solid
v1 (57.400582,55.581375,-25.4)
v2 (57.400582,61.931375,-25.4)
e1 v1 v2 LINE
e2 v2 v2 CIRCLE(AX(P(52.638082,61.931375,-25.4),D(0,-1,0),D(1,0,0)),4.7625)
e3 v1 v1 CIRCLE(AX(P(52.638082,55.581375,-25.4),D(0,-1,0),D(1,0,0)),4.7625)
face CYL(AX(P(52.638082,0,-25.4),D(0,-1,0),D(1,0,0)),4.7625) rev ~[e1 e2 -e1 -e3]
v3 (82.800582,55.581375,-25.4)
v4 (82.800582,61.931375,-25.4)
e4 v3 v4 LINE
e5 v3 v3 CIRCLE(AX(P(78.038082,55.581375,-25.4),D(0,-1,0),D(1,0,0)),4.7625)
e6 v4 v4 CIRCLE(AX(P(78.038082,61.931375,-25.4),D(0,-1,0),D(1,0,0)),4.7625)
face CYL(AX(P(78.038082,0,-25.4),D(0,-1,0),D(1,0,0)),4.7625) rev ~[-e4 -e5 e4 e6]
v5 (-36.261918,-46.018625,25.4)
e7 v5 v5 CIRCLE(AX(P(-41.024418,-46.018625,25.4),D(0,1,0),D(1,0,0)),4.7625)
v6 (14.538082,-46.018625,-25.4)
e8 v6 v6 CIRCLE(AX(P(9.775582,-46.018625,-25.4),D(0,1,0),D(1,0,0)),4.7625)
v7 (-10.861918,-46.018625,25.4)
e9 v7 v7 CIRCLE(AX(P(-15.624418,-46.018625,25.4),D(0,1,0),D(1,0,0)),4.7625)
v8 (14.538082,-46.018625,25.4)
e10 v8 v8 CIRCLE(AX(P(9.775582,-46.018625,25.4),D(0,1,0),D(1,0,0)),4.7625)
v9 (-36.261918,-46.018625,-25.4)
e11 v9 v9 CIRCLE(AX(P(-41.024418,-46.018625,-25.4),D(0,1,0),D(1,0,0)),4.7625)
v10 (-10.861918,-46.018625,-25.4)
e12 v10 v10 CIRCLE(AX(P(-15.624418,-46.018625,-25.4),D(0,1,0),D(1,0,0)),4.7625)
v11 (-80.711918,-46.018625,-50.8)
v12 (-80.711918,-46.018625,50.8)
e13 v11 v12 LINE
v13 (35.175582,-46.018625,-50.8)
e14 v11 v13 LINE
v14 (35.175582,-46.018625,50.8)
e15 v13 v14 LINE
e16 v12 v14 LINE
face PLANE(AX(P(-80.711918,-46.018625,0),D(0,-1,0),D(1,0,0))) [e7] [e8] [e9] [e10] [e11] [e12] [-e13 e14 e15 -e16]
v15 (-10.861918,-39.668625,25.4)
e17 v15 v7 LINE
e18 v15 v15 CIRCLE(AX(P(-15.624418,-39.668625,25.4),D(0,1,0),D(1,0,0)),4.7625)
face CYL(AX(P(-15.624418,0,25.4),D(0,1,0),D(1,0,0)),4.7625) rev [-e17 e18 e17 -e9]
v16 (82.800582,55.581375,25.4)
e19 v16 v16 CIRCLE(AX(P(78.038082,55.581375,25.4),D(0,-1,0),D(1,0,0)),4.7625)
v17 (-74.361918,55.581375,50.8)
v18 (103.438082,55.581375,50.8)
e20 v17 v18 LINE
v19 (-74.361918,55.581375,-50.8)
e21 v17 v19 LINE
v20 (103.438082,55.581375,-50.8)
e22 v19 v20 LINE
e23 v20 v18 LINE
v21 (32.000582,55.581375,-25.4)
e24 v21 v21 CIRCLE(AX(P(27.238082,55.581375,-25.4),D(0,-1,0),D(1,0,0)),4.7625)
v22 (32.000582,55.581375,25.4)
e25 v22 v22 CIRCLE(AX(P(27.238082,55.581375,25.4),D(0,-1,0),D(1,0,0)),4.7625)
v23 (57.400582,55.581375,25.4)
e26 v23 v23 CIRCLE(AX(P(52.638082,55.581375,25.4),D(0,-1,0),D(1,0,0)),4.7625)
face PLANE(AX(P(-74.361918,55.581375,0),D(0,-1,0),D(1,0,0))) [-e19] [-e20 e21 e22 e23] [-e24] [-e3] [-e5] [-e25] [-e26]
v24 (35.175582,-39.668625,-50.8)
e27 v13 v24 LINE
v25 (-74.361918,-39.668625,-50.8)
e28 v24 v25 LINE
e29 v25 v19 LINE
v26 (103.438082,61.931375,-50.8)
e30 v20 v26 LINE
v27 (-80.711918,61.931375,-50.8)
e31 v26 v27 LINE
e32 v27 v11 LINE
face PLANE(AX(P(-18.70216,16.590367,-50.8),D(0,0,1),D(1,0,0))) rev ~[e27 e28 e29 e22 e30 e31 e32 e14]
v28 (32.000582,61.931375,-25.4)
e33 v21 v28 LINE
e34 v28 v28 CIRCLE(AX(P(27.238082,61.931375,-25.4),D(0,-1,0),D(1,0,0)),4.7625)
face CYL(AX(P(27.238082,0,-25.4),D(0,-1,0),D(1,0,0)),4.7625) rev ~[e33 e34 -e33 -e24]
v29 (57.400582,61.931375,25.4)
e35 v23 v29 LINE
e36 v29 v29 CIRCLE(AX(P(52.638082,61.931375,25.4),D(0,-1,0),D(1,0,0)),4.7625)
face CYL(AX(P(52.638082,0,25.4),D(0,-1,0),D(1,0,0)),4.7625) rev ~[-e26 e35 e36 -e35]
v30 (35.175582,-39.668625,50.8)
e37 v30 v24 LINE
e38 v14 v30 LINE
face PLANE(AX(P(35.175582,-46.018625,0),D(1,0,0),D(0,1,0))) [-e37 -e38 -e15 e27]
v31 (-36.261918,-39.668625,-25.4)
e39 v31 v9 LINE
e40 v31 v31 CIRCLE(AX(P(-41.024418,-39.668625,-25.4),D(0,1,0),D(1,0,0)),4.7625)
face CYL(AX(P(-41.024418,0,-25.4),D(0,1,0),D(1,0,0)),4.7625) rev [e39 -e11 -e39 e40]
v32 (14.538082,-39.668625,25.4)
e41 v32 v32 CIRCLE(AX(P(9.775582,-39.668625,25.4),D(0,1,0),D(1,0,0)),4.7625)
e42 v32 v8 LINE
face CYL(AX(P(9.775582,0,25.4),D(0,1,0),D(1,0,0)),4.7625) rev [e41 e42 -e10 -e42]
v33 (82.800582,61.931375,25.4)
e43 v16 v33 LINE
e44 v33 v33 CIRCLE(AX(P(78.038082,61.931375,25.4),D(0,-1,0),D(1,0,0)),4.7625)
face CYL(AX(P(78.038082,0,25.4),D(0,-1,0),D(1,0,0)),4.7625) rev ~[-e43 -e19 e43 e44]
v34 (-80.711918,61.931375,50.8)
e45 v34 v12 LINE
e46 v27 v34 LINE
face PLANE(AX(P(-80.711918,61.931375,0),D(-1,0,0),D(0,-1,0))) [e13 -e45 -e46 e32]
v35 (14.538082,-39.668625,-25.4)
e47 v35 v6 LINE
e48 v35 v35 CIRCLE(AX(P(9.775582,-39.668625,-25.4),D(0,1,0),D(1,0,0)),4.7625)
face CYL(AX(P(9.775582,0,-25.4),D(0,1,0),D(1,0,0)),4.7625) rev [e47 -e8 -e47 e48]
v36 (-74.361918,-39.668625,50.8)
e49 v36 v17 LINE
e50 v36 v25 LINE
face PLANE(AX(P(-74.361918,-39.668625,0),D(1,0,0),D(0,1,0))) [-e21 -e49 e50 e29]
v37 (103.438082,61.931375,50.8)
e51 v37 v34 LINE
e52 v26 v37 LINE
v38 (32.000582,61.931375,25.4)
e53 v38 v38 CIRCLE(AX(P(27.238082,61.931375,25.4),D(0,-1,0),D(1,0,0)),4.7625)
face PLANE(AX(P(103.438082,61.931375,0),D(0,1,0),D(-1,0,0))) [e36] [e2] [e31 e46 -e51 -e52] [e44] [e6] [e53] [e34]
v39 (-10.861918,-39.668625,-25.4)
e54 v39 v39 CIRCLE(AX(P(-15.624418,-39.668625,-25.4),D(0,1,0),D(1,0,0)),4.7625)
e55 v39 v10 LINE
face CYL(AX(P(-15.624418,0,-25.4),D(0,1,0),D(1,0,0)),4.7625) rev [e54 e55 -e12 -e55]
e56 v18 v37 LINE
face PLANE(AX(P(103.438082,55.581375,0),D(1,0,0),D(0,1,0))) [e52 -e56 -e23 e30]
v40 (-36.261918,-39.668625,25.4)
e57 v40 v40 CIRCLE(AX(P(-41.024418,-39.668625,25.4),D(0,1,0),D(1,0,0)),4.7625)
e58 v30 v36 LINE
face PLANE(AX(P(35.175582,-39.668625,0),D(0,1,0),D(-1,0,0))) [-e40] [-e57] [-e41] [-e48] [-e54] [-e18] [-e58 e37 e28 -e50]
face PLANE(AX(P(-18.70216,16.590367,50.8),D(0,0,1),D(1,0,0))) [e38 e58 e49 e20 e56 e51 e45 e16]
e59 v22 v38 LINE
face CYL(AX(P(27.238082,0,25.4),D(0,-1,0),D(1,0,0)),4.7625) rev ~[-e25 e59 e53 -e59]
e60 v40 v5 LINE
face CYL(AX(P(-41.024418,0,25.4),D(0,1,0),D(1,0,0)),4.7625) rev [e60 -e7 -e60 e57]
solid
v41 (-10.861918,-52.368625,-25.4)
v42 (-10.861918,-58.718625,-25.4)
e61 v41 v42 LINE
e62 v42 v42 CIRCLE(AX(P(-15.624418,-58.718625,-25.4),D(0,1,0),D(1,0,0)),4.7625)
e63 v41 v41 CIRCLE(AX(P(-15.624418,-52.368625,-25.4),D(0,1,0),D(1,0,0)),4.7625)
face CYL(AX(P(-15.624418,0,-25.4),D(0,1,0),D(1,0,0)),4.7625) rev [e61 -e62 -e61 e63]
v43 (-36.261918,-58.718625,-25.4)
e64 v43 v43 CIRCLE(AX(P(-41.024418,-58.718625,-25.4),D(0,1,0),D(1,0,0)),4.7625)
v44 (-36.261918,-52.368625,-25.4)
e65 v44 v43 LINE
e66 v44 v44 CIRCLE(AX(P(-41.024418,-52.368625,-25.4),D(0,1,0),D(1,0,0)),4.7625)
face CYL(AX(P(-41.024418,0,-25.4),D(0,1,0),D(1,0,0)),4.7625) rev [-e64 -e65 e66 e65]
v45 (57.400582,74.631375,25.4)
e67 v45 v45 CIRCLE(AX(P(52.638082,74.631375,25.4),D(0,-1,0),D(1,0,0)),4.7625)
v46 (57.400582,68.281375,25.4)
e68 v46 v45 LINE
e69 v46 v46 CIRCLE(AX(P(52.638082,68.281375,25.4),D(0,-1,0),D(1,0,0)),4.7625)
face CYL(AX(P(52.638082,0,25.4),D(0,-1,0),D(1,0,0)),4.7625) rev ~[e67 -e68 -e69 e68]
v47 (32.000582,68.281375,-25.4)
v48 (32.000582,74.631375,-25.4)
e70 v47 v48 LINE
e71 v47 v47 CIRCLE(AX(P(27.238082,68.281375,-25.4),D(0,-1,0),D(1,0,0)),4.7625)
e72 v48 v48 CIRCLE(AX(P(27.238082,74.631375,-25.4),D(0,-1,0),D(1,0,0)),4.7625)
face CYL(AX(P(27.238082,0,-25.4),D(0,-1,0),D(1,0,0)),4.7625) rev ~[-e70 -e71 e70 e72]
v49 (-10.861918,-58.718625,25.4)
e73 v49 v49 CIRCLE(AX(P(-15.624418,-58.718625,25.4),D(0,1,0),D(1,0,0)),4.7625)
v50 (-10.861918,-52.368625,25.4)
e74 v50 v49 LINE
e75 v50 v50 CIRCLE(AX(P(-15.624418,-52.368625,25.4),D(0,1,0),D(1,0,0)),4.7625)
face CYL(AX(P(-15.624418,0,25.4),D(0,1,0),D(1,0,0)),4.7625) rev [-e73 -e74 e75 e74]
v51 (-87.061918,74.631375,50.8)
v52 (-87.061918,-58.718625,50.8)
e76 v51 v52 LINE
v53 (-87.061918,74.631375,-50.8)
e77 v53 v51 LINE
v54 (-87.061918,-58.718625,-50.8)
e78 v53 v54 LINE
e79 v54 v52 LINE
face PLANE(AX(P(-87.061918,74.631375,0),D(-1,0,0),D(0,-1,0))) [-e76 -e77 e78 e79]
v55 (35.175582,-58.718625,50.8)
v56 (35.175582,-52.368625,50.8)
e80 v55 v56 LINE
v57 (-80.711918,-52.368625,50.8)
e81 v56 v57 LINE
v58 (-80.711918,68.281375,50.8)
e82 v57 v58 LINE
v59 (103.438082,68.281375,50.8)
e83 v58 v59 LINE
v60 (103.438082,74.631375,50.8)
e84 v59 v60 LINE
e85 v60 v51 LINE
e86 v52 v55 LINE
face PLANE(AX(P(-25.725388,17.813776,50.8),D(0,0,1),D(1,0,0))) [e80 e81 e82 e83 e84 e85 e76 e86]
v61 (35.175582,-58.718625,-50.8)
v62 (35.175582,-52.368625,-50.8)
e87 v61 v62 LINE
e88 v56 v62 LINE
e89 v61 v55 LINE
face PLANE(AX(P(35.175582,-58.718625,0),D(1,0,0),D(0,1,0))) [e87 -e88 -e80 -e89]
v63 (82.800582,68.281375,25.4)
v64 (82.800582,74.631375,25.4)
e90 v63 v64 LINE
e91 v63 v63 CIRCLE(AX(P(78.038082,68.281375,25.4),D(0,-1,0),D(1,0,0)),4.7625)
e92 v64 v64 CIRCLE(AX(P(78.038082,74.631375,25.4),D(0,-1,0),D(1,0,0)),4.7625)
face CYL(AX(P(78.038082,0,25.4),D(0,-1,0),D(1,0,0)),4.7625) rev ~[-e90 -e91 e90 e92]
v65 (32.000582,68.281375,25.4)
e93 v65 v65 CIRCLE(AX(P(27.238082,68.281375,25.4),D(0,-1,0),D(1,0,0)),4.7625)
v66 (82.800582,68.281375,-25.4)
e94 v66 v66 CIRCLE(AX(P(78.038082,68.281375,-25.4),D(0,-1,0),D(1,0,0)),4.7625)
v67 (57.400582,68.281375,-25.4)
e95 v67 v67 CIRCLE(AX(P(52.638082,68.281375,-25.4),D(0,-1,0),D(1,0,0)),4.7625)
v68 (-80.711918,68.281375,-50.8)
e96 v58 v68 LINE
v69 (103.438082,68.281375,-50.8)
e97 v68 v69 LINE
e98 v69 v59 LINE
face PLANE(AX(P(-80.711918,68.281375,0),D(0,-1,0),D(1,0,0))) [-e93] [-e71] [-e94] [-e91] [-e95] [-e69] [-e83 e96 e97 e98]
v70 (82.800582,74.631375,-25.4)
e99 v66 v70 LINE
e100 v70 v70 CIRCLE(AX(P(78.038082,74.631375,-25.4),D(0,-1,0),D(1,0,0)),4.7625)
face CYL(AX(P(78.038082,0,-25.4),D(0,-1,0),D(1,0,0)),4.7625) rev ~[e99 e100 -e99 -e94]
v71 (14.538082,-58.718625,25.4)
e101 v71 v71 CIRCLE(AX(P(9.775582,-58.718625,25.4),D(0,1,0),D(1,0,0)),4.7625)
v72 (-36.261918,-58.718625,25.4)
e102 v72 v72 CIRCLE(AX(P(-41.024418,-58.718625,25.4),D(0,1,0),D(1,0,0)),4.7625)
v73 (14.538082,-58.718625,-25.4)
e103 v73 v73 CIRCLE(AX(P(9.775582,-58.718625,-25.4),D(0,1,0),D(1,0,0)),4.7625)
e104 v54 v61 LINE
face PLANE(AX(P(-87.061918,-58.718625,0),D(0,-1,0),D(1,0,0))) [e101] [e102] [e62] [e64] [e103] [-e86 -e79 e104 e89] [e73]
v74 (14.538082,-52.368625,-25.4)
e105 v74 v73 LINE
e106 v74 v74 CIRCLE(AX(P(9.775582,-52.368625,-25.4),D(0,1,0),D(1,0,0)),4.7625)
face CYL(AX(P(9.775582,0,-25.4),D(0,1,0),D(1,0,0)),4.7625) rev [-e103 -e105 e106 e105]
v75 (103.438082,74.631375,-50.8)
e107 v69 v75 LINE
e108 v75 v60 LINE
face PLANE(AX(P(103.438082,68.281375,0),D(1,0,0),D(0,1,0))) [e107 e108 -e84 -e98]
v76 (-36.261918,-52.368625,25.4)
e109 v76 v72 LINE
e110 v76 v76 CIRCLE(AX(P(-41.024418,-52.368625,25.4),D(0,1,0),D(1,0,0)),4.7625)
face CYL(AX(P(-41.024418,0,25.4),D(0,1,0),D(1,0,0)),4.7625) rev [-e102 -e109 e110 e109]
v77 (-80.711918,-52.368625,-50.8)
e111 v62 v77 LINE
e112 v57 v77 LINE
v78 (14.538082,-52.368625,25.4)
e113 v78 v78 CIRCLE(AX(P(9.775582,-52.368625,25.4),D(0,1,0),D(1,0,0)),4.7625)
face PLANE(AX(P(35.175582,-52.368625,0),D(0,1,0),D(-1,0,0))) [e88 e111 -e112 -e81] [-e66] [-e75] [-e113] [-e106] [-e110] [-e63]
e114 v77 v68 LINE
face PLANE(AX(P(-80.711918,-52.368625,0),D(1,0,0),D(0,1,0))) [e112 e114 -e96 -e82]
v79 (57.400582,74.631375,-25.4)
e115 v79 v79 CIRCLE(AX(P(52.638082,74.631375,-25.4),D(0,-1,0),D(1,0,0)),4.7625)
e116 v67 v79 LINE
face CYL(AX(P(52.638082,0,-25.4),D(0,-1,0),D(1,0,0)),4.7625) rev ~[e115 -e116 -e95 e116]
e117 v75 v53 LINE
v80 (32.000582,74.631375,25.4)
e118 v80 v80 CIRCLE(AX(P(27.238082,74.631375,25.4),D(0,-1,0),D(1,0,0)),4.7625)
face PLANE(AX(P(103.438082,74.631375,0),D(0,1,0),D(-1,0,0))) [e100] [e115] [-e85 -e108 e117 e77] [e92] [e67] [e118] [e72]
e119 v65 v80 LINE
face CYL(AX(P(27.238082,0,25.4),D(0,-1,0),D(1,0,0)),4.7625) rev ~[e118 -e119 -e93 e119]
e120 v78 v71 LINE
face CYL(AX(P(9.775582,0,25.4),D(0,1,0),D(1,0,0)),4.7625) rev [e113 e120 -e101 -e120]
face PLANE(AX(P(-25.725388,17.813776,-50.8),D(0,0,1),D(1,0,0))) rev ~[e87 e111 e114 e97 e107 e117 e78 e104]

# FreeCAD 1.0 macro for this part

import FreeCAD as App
import Part
import Sketcher
from FreeCAD import Vector
Q = App.Units.Quantity

doc = App.newDocument("Part")
body = doc.addObject("PartDesign::Body", "Body")

# Sketch on XY plane
sketch1 = body.newObject("Sketcher::SketchObject", "Sketch")
sketch1.AttachmentSupport = (doc.getObject("XY_Plane"), [""])
sketch1.MapMode = "FlatFace"
sketch1.addGeometry([
    Part.LineSegment(Vector(-74, 56, 0), Vector(103, 56, 0)),  # 0
    Part.LineSegment(Vector(103, 56, 0), Vector(103, 62, 0)),  # 1
    Part.LineSegment(Vector(103, 62, 0), Vector(-81, 62, 0)),  # 2
    Part.LineSegment(Vector(-81, 62, 0), Vector(-81, -46, 0)),  # 3
    Part.LineSegment(Vector(-81, -46, 0), Vector(35, -46, 0)),  # 4
    Part.LineSegment(Vector(35, -46, 0), Vector(35, -40, 0)),  # 5
    Part.LineSegment(Vector(35, -40, 0), Vector(-74, -40, 0)),  # 6
    Part.LineSegment(Vector(-74, -40, 0), Vector(-74, 56, 0)),  # 7
], False)
sketch1.addConstraint([
    Sketcher.Constraint("Coincident", 0, 2, 1, 1),
    Sketcher.Constraint("Coincident", 1, 2, 2, 1),
    Sketcher.Constraint("Coincident", 2, 2, 3, 1),
    Sketcher.Constraint("Coincident", 3, 2, 4, 1),
    Sketcher.Constraint("Coincident", 4, 2, 5, 1),
    Sketcher.Constraint("Coincident", 5, 2, 6, 1),
    Sketcher.Constraint("Coincident", 6, 2, 7, 1),
    Sketcher.Constraint("Coincident", 7, 2, 0, 1),
    Sketcher.Constraint("Horizontal", 0),
    Sketcher.Constraint("Vertical", 1),
    Sketcher.Constraint("Horizontal", 2),
    Sketcher.Constraint("Vertical", 3),
    Sketcher.Constraint("Horizontal", 4),
    Sketcher.Constraint("Vertical", 5),
    Sketcher.Constraint("Horizontal", 6),
    Sketcher.Constraint("Vertical", 7),
    Sketcher.Constraint("Equal", 1, 5),
    Sketcher.Constraint("DistanceX", 0, 1, 0, 2, Q("7 in")),
    Sketcher.Constraint("DistanceY", 3, 2, 0, 2, Q("4 in")),
    Sketcher.Constraint("DistanceX", 2, 2, 2, 1, Q("7.25 in")),
    Sketcher.Constraint("DistanceY", 1, 1, 1, 2, Q("0.25 in")),
    Sketcher.Constraint("DistanceX", 4, 1, 4, 2, Q("4.5625 in")),
    Sketcher.Constraint("DistanceX", -1, 1, 0, 2, 103.438082),
    Sketcher.Constraint("DistanceY", -1, 1, 0, 2, 55.581375),
])
pad1 = body.newObject("PartDesign::Pad", "Pad")
pad1.Profile = sketch1
pad1.Length = Q("4 in")
pad1.Midplane = True
body2 = doc.addObject("PartDesign::Body", "Body001")

# Sketch on XY plane
sketch2 = body2.newObject("Sketcher::SketchObject", "Sketch001")
sketch2.AttachmentSupport = (doc.getObject("XY_Plane001"), [""])
sketch2.MapMode = "FlatFace"
sketch2.addGeometry([
    Part.LineSegment(Vector(-81, 68, 0), Vector(103, 68, 0)),  # 0
    Part.LineSegment(Vector(103, 68, 0), Vector(103, 75, 0)),  # 1
    Part.LineSegment(Vector(103, 75, 0), Vector(-87, 75, 0)),  # 2
    Part.LineSegment(Vector(-87, 75, 0), Vector(-87, -59, 0)),  # 3
    Part.LineSegment(Vector(-87, -59, 0), Vector(35, -59, 0)),  # 4
    Part.LineSegment(Vector(35, -59, 0), Vector(35, -52, 0)),  # 5
    Part.LineSegment(Vector(35, -52, 0), Vector(-81, -52, 0)),  # 6
    Part.LineSegment(Vector(-81, -52, 0), Vector(-81, 68, 0)),  # 7
], False)
sketch2.addConstraint([
    Sketcher.Constraint("Coincident", 0, 2, 1, 1),
    Sketcher.Constraint("Coincident", 1, 2, 2, 1),
    Sketcher.Constraint("Coincident", 2, 2, 3, 1),
    Sketcher.Constraint("Coincident", 3, 2, 4, 1),
    Sketcher.Constraint("Coincident", 4, 2, 5, 1),
    Sketcher.Constraint("Coincident", 5, 2, 6, 1),
    Sketcher.Constraint("Coincident", 6, 2, 7, 1),
    Sketcher.Constraint("Coincident", 7, 2, 0, 1),
    Sketcher.Constraint("Horizontal", 0),
    Sketcher.Constraint("Vertical", 1),
    Sketcher.Constraint("Horizontal", 2),
    Sketcher.Constraint("Vertical", 3),
    Sketcher.Constraint("Horizontal", 4),
    Sketcher.Constraint("Vertical", 5),
    Sketcher.Constraint("Horizontal", 6),
    Sketcher.Constraint("Vertical", 7),
    Sketcher.Constraint("Equal", 1, 5),
    Sketcher.Constraint("DistanceX", 2, 2, 2, 1, Q("7.5 in")),
    Sketcher.Constraint("DistanceY", 3, 2, 0, 2, Q("5 in")),
    Sketcher.Constraint("DistanceX", 0, 1, 0, 2, Q("7.25 in")),
    Sketcher.Constraint("DistanceY", 1, 1, 1, 2, Q("0.25 in")),
    Sketcher.Constraint("DistanceX", 4, 1, 4, 2, Q("4.8125 in")),
    Sketcher.Constraint("DistanceX", -1, 1, 0, 2, 103.438082),
    Sketcher.Constraint("DistanceY", -1, 1, 0, 2, 68.281375),
])
pad2 = body2.newObject("PartDesign::Pad", "Pad001")
pad2.Profile = sketch2
pad2.Length = Q("4 in")
pad2.Midplane = True
body3 = doc.addObject("PartDesign::Body", "Body002")
body3.AllowCompound = True

# Sketch on XZ plane
sketch3 = body3.newObject("Sketcher::SketchObject", "Sketch002")
sketch3.AttachmentSupport = (doc.getObject("XZ_Plane002"), [""])
sketch3.MapMode = "FlatFace"
sketch3.addGeometry([
    Part.Circle(Vector(78, 25.4, 0), Vector(0, 0, 1), 4.8),  # 0
    Part.Circle(Vector(78, -25.4, 0), Vector(0, 0, 1), 4.8),  # 1
    Part.Circle(Vector(52.6, 25.4, 0), Vector(0, 0, 1), 4.8),  # 2
    Part.Circle(Vector(52.6, -25.4, 0), Vector(0, 0, 1), 4.8),  # 3
    Part.Circle(Vector(27.2, 25.4, 0), Vector(0, 0, 1), 4.8),  # 4
    Part.Circle(Vector(27.2, -25.4, 0), Vector(0, 0, 1), 4.8),  # 5
], False)
sketch3.addConstraint([
    Sketcher.Constraint("Equal", 0, 1),
    Sketcher.Constraint("Equal", 1, 2),
    Sketcher.Constraint("Equal", 2, 3),
    Sketcher.Constraint("Equal", 3, 4),
    Sketcher.Constraint("Equal", 4, 5),
    Sketcher.Constraint("Symmetric", 0, 3, 1, 3, -1),
    Sketcher.Constraint("Symmetric", 2, 3, 3, 3, -1),
    Sketcher.Constraint("Symmetric", 4, 3, 5, 3, -1),
    Sketcher.Constraint("Horizontal", 0, 3, 2, 3),
    Sketcher.Constraint("Horizontal", 2, 3, 4, 3),
    Sketcher.Constraint("Diameter", 0, Q("0.375 in")),
    Sketcher.Constraint("DistanceY", -1, 1, 0, 3, Q("1 in")),
    Sketcher.Constraint("DistanceX", 2, 3, 0, 3, Q("1 in")),
    Sketcher.Constraint("DistanceX", 4, 3, 2, 3, Q("1 in")),
    Sketcher.Constraint("DistanceX", -1, 1, 2, 3, 52.638082),
])
pad3 = body3.newObject("PartDesign::Pad", "Pad002")
pad3.Profile = sketch3
pad3.Length = 74.632375
pad3.Reversed = True
doc.recompute()

body4 = doc.addObject("PartDesign::Body", "Body003")
body4.BaseFeature = body3
boolean = body.newObject("PartDesign::Boolean", "Boolean")
boolean.Type = "Cut"
boolean.addObjects([body4])
doc.recompute()

boolean2 = body2.newObject("PartDesign::Boolean", "Boolean001")
boolean2.Type = "Cut"
boolean2.addObjects([body3])
body5 = doc.addObject("PartDesign::Body", "Body004")
body5.AllowCompound = True

# Sketch on XZ plane
sketch4 = body5.newObject("Sketcher::SketchObject", "Sketch003")
sketch4.AttachmentSupport = (doc.getObject("XZ_Plane004"), [""])
sketch4.MapMode = "FlatFace"
sketch4.addGeometry([
    Part.Circle(Vector(9.8, 25.4, 0), Vector(0, 0, 1), 4.8),  # 0
    Part.Circle(Vector(9.8, -25.4, 0), Vector(0, 0, 1), 4.8),  # 1
    Part.Circle(Vector(-15.6, 25.4, 0), Vector(0, 0, 1), 4.8),  # 2
    Part.Circle(Vector(-15.6, -25.4, 0), Vector(0, 0, 1), 4.8),  # 3
    Part.Circle(Vector(-41, 25.4, 0), Vector(0, 0, 1), 4.8),  # 4
    Part.Circle(Vector(-41, -25.4, 0), Vector(0, 0, 1), 4.8),  # 5
], False)
sketch4.addConstraint([
    Sketcher.Constraint("Equal", 0, 1),
    Sketcher.Constraint("Equal", 1, 2),
    Sketcher.Constraint("Equal", 2, 3),
    Sketcher.Constraint("Equal", 3, 4),
    Sketcher.Constraint("Equal", 4, 5),
    Sketcher.Constraint("Symmetric", 0, 3, 1, 3, -1),
    Sketcher.Constraint("Symmetric", 2, 3, 3, 3, -1),
    Sketcher.Constraint("Symmetric", 4, 3, 5, 3, -1),
    Sketcher.Constraint("Horizontal", 0, 3, 2, 3),
    Sketcher.Constraint("Horizontal", 2, 3, 4, 3),
    Sketcher.Constraint("Diameter", 0, Q("0.375 in")),
    Sketcher.Constraint("DistanceY", -1, 1, 0, 3, Q("1 in")),
    Sketcher.Constraint("DistanceX", 2, 3, 0, 3, Q("1 in")),
    Sketcher.Constraint("DistanceX", 4, 3, 2, 3, Q("1 in")),
    Sketcher.Constraint("DistanceX", -1, 1, 0, 3, 9.775582),
])
pad4 = body5.newObject("PartDesign::Pad", "Pad003")
pad4.Profile = sketch4
pad4.Length = 58.719625
doc.recompute()

body6 = doc.addObject("PartDesign::Body", "Body005")
body6.BaseFeature = body5
boolean3 = body.newObject("PartDesign::Boolean", "Boolean002")
boolean3.Type = "Cut"
boolean3.addObjects([body6])
doc.recompute()

boolean4 = body2.newObject("PartDesign::Boolean", "Boolean003")
boolean4.Type = "Cut"
boolean4.addObjects([body5])

doc.recompute()
